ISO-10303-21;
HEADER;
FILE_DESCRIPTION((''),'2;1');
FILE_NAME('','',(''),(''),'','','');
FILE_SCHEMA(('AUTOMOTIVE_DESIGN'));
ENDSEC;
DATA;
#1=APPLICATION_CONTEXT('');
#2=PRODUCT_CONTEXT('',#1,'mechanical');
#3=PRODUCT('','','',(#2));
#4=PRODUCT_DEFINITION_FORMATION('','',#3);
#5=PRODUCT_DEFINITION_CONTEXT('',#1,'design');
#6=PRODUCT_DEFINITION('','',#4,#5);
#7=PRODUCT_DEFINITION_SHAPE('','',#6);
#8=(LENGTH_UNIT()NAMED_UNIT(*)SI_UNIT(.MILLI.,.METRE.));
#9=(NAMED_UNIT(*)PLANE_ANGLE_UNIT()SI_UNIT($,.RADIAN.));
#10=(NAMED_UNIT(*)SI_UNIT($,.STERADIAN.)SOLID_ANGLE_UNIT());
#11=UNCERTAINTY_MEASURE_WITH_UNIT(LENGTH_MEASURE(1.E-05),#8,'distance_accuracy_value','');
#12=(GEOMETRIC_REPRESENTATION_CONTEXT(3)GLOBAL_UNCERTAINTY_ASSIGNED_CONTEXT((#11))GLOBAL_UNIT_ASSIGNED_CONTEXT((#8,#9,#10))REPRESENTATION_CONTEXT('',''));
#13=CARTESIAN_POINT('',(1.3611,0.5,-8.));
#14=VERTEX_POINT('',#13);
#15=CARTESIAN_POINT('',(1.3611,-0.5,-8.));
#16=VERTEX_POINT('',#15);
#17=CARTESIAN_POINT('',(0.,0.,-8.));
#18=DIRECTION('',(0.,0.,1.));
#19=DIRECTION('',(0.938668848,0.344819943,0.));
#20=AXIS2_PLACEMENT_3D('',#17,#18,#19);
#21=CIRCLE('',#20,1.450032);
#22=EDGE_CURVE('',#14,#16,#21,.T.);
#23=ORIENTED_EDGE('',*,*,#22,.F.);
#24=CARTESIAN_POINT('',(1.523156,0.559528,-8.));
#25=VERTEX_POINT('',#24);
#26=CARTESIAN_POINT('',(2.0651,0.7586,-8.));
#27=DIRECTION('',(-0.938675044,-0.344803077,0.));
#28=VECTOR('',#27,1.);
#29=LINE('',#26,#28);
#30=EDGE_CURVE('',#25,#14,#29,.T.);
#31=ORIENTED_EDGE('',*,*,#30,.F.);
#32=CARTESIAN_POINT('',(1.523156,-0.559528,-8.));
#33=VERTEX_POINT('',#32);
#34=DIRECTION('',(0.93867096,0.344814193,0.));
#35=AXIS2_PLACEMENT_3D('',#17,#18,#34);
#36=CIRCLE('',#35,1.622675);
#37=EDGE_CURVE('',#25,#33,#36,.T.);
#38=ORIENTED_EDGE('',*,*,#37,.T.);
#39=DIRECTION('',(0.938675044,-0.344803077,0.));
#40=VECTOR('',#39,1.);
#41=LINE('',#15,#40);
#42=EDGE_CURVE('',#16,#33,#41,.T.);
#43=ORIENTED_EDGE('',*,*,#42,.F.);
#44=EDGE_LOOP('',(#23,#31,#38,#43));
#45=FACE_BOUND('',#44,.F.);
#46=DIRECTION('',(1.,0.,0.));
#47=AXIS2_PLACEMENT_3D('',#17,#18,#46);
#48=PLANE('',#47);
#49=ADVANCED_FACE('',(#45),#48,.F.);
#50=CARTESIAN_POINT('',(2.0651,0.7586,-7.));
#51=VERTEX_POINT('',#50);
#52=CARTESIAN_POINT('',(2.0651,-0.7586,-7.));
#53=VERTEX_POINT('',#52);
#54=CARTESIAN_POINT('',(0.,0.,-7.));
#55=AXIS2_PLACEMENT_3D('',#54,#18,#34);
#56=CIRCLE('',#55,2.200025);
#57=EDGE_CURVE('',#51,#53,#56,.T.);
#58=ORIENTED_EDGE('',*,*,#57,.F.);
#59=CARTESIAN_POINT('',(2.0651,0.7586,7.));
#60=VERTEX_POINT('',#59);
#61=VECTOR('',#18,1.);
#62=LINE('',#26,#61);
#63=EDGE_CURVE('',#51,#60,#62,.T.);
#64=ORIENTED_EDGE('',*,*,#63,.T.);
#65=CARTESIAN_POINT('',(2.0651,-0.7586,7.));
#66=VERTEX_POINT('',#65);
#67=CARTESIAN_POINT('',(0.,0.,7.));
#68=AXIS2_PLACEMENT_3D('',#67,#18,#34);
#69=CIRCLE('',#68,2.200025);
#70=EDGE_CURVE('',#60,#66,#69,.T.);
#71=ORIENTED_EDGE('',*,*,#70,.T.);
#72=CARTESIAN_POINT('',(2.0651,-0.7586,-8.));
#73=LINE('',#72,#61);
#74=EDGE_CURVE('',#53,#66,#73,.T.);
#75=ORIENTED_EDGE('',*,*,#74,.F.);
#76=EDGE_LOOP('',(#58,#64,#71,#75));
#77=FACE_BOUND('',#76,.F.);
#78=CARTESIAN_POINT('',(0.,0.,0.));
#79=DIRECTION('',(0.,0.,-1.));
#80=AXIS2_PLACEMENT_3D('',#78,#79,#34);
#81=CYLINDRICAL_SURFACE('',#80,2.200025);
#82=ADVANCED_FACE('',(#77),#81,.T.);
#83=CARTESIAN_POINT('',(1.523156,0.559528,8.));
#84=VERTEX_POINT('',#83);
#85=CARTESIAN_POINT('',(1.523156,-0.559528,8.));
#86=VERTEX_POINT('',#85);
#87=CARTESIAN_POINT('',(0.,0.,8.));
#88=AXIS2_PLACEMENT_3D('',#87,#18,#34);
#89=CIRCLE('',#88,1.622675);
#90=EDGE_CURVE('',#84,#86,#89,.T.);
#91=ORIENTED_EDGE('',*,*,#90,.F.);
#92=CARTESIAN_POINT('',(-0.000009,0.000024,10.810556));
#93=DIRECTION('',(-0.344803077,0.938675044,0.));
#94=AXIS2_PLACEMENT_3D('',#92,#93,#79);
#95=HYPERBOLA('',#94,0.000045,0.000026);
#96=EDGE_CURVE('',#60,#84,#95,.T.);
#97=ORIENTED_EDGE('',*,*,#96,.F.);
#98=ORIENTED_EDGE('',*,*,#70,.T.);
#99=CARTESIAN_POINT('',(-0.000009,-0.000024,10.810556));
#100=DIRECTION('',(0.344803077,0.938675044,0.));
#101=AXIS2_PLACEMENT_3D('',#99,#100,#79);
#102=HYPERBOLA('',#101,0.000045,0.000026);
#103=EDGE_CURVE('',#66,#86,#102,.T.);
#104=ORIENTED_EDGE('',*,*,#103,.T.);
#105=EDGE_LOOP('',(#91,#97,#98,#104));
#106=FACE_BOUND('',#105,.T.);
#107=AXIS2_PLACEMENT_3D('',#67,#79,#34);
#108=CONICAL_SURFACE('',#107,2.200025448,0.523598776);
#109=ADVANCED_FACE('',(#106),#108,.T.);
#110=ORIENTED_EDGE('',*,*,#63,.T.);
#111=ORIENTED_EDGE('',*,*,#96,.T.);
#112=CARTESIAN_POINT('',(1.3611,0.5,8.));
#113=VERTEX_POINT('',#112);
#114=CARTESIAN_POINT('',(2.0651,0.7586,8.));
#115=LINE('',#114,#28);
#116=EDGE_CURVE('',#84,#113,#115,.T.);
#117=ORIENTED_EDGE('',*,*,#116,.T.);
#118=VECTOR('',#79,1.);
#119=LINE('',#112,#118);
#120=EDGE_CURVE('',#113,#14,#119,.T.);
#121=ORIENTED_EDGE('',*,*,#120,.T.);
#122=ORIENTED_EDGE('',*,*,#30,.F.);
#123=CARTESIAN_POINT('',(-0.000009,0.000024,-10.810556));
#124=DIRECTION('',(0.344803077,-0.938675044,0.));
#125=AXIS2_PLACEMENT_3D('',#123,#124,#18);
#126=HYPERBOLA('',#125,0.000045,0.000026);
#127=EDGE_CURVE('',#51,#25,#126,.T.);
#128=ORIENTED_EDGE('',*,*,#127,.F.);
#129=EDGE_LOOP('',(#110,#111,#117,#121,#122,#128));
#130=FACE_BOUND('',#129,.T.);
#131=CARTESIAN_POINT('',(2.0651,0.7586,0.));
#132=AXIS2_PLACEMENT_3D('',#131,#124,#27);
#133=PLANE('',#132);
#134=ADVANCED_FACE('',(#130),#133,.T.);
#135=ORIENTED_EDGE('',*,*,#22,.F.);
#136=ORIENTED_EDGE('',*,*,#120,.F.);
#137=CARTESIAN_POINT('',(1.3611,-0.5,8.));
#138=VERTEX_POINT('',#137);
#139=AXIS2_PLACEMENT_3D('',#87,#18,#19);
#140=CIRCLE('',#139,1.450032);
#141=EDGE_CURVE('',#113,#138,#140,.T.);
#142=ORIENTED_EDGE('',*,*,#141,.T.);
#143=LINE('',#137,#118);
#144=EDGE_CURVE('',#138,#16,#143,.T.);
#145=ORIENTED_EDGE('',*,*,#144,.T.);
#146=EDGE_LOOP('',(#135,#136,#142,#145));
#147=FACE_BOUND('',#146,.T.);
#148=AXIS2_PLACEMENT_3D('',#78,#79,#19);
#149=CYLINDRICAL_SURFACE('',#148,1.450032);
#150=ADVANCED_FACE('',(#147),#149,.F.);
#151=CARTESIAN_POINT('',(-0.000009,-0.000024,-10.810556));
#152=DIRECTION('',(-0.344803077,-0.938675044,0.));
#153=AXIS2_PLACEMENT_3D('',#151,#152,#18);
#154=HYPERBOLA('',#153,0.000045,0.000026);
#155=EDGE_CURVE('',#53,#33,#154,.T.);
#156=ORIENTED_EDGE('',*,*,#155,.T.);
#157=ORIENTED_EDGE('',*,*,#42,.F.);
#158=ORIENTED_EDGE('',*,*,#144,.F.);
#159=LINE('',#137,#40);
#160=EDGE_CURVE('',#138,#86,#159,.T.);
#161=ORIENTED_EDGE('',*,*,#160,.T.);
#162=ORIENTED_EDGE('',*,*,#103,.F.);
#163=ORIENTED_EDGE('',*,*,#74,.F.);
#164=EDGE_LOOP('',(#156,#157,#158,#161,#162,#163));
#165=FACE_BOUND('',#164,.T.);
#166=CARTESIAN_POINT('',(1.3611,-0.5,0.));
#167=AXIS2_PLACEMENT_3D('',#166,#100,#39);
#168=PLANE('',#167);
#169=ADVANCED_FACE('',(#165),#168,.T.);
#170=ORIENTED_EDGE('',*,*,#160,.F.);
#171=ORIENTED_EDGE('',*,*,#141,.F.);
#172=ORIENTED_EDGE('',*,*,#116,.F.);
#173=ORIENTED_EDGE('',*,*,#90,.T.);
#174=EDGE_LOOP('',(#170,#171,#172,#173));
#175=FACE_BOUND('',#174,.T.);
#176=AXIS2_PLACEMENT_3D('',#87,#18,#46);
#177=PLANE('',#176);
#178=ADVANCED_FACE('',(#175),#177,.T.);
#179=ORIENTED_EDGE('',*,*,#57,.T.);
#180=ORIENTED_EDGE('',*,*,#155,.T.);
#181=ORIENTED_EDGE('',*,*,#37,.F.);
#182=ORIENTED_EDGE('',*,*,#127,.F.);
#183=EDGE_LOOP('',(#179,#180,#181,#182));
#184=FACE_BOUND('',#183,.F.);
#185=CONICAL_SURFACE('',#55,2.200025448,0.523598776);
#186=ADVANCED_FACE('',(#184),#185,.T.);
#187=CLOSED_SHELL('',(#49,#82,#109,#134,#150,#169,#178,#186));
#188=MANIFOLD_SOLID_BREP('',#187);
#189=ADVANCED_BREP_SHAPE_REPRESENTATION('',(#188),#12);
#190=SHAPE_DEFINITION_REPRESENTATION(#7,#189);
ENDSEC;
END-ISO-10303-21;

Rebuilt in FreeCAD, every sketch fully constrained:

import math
import FreeCAD as App
import Part
import Sketcher
from FreeCAD import Vector
Q = App.Units.Quantity


def edges_at(feature, points):
    """Names of the edges that pass closest to the given points."""
    edges = feature.Shape.Edges
    near = lambda p: min(range(len(edges)), key=lambda i: edges[i].distToShape(Part.Vertex(*p))[0])
    return sorted({f"Edge{near(p) + 1}" for p in points})

doc = App.newDocument("Part")
body = doc.addObject("PartDesign::Body", "Body")

sketch1 = body.newObject("Sketcher::SketchObject", "Sketch")
sketch1.AttachmentSupport = (doc.getObject("XY_Plane"), [""])
sketch1.MapMode = "FlatFace"
sketch1.addGeometry([
    Part.LineSegment(Vector(1.4, 0.5, 0), Vector(2.1, 0.8, 0)),
    Part.ArcOfCircle(Part.Circle(Vector(0, 0, 0), Vector(0, 0, 1), 2.2), math.radians(20), math.radians(340)),
    Part.LineSegment(Vector(2.1, -0.8, 0), Vector(1.4, -0.5, 0)),
    Part.ArcOfCircle(Part.Circle(Vector(0, 0, 0), Vector(0, 0, 1), 1.5), math.radians(20), math.radians(340)),
], False)
sketch1.addConstraint([
    Sketcher.Constraint("Coincident", 0, 2, 1, 1),
    Sketcher.Constraint("Coincident", 1, 2, 2, 1),
    Sketcher.Constraint("Coincident", 2, 2, 3, 2),
    Sketcher.Constraint("Coincident", 3, 1, 0, 1),
    Sketcher.Constraint("Coincident", 1, 3, -1, 1),
    Sketcher.Constraint("Coincident", 3, 3, -1, 1),
    Sketcher.Constraint("Vertical", 0, 2, 1, 2),
    Sketcher.Constraint("Vertical", 2, 2, 3, 1),
    Sketcher.Constraint("Radius", 1, 2.2),
    Sketcher.Constraint("Radius", 3, 1.45),
    Sketcher.Constraint("DistanceY", 2, 2, 3, 1, 1.0),
    Sketcher.Constraint("Angle", 0, Q("20.1698 deg")),
])
pad1 = body.newObject("PartDesign::Pad", "Pad")
pad1.Profile = sketch1
pad1.Length = 16
pad1.Midplane = True
doc.recompute()

chamfer = body.newObject("PartDesign::Chamfer", "Chamfer")
chamfer.Base = (pad1, edges_at(pad1, [(-2.2, 0, 8), (-2.2, 0, -8)]))
chamfer.ChamferType = "Distance and Angle"
chamfer.Size = 1
chamfer.Angle = 30

doc.recompute()
